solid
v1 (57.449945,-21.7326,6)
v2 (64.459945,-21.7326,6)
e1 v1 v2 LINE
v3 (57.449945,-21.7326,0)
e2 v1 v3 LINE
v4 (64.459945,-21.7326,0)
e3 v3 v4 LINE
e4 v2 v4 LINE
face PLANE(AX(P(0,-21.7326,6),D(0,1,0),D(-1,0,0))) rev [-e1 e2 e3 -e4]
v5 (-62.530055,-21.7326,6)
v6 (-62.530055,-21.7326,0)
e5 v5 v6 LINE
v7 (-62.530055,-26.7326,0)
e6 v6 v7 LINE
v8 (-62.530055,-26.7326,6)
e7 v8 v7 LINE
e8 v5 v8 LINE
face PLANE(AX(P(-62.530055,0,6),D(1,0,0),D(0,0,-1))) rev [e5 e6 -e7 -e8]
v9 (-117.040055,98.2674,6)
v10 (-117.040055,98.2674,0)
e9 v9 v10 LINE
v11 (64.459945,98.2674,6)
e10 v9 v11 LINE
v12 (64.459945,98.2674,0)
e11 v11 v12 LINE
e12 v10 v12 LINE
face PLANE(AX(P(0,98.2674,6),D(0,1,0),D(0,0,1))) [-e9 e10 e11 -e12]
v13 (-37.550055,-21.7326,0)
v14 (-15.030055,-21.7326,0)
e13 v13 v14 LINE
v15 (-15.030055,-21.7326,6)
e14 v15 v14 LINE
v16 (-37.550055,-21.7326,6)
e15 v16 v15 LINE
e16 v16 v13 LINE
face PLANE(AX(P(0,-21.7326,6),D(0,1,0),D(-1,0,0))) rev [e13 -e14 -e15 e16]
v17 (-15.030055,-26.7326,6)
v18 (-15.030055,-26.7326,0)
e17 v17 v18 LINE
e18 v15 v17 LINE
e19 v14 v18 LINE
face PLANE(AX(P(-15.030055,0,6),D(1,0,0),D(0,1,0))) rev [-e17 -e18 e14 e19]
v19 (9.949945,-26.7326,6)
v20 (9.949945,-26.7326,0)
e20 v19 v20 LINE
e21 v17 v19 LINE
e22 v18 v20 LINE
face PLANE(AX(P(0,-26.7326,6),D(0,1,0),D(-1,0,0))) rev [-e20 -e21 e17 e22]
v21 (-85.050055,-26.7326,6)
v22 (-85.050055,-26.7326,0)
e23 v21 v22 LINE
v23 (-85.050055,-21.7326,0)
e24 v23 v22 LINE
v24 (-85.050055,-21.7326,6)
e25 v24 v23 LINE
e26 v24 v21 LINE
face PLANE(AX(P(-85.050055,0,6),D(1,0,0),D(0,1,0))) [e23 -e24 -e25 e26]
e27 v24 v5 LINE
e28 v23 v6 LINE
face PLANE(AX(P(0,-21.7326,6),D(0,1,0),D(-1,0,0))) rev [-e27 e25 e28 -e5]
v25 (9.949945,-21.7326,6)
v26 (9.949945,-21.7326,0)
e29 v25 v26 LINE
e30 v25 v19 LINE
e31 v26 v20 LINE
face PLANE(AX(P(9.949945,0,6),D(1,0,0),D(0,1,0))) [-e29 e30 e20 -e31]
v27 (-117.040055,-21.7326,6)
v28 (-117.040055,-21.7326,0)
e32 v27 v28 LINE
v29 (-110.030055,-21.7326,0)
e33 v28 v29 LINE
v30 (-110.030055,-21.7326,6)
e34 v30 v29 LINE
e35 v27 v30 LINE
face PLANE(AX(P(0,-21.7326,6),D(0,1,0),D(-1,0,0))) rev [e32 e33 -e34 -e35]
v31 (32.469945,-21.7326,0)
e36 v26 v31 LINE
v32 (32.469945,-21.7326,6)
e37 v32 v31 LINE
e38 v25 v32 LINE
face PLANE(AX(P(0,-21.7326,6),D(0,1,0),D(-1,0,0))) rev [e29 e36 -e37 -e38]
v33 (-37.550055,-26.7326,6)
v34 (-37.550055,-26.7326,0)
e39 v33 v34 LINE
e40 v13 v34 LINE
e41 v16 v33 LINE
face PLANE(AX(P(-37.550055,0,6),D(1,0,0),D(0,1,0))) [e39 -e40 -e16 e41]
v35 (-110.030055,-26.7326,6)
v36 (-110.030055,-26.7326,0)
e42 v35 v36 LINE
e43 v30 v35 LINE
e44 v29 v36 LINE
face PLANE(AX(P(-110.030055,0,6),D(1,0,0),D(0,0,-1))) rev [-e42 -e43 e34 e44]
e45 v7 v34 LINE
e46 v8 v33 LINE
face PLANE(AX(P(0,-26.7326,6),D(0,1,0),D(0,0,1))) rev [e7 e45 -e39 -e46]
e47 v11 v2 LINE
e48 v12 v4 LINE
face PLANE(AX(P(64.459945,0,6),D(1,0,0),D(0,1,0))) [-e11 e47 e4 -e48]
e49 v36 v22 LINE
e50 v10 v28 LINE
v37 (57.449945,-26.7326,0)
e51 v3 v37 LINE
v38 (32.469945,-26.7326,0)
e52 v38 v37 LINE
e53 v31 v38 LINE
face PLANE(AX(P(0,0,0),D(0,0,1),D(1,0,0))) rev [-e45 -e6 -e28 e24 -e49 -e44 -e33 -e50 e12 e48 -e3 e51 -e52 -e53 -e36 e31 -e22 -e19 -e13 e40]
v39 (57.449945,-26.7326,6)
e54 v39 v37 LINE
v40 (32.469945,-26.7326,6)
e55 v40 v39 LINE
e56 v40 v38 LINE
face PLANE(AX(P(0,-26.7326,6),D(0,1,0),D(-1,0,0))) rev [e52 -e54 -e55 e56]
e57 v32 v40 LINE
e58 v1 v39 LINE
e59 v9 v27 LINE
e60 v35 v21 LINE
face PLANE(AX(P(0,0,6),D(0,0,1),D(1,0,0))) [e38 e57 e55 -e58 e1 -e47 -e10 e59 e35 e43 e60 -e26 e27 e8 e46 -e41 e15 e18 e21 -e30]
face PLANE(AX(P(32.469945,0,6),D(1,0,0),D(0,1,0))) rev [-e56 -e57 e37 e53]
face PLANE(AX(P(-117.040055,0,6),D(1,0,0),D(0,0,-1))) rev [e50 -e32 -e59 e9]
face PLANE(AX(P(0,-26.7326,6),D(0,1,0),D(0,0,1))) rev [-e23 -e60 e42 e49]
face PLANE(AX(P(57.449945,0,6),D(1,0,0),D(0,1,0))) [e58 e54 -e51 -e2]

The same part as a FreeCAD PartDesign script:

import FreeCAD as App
import Part
import Sketcher

V = App.Vector
Q = App.Units.Quantity

doc = App.newDocument("Part")
body = doc.addObject("PartDesign::Body", "Body")

# Sketch on XY plane
sketch1 = body.newObject("Sketcher::SketchObject", "Sketch")
sketch1.AttachmentSupport = (doc.getObject("XY_Plane"), [""])
sketch1.MapMode = "FlatFace"
sketch1.addGeometry(Part.LineSegment(V(-117, 98, 0), V(-117, -22, 0)), False)
sketch1.addGeometry(Part.LineSegment(V(-117, -22, 0), V(-110, -22, 0)), False)
sketch1.addGeometry(Part.LineSegment(V(-110, -22, 0), V(-110, -27, 0)), False)
sketch1.addGeometry(Part.LineSegment(V(-110, -27, 0), V(-85, -27, 0)), False)
sketch1.addGeometry(Part.LineSegment(V(-85, -27, 0), V(-85, -22, 0)), False)
sketch1.addGeometry(Part.LineSegment(V(-85, -22, 0), V(-63, -22, 0)), False)
sketch1.addGeometry(Part.LineSegment(V(-63, -22, 0), V(-63, -27, 0)), False)
sketch1.addGeometry(Part.LineSegment(V(-63, -27, 0), V(-38, -27, 0)), False)
sketch1.addGeometry(Part.LineSegment(V(-38, -27, 0), V(-38, -22, 0)), False)
sketch1.addGeometry(Part.LineSegment(V(-38, -22, 0), V(-15, -22, 0)), False)
sketch1.addGeometry(Part.LineSegment(V(-15, -22, 0), V(-15, -27, 0)), False)
sketch1.addGeometry(Part.LineSegment(V(-15, -27, 0), V(10, -27, 0)), False)
sketch1.addGeometry(Part.LineSegment(V(10, -27, 0), V(10, -22, 0)), False)
sketch1.addGeometry(Part.LineSegment(V(10, -22, 0), V(32, -22, 0)), False)
sketch1.addGeometry(Part.LineSegment(V(32, -22, 0), V(32, -27, 0)), False)
sketch1.addGeometry(Part.LineSegment(V(32, -27, 0), V(57, -27, 0)), False)
sketch1.addGeometry(Part.LineSegment(V(57, -27, 0), V(57, -22, 0)), False)
sketch1.addGeometry(Part.LineSegment(V(57, -22, 0), V(64, -22, 0)), False)
sketch1.addGeometry(Part.LineSegment(V(64, -22, 0), V(64, 98, 0)), False)
sketch1.addGeometry(Part.LineSegment(V(64, 98, 0), V(-117, 98, 0)), False)
sketch1.addConstraint(Sketcher.Constraint("Coincident", 0, 2, 1, 1))
sketch1.addConstraint(Sketcher.Constraint("Coincident", 1, 2, 2, 1))
sketch1.addConstraint(Sketcher.Constraint("Coincident", 2, 2, 3, 1))
sketch1.addConstraint(Sketcher.Constraint("Coincident", 3, 2, 4, 1))
sketch1.addConstraint(Sketcher.Constraint("Coincident", 4, 2, 5, 1))
sketch1.addConstraint(Sketcher.Constraint("Coincident", 5, 2, 6, 1))
sketch1.addConstraint(Sketcher.Constraint("Coincident", 6, 2, 7, 1))
sketch1.addConstraint(Sketcher.Constraint("Coincident", 7, 2, 8, 1))
sketch1.addConstraint(Sketcher.Constraint("Coincident", 8, 2, 9, 1))
sketch1.addConstraint(Sketcher.Constraint("Coincident", 9, 2, 10, 1))
sketch1.addConstraint(Sketcher.Constraint("Coincident", 10, 2, 11, 1))
sketch1.addConstraint(Sketcher.Constraint("Coincident", 11, 2, 12, 1))
sketch1.addConstraint(Sketcher.Constraint("Coincident", 12, 2, 13, 1))
sketch1.addConstraint(Sketcher.Constraint("Coincident", 13, 2, 14, 1))
sketch1.addConstraint(Sketcher.Constraint("Coincident", 14, 2, 15, 1))
sketch1.addConstraint(Sketcher.Constraint("Coincident", 15, 2, 16, 1))
sketch1.addConstraint(Sketcher.Constraint("Coincident", 16, 2, 17, 1))
sketch1.addConstraint(Sketcher.Constraint("Coincident", 17, 2, 18, 1))
sketch1.addConstraint(Sketcher.Constraint("Coincident", 18, 2, 19, 1))
sketch1.addConstraint(Sketcher.Constraint("Coincident", 19, 2, 0, 1))
sketch1.addConstraint(Sketcher.Constraint("Vertical", 0))
sketch1.addConstraint(Sketcher.Constraint("Horizontal", 1))
sketch1.addConstraint(Sketcher.Constraint("Vertical", 2))
sketch1.addConstraint(Sketcher.Constraint("Horizontal", 3))
sketch1.addConstraint(Sketcher.Constraint("Vertical", 4))
sketch1.addConstraint(Sketcher.Constraint("Horizontal", 5))
sketch1.addConstraint(Sketcher.Constraint("Vertical", 6))
sketch1.addConstraint(Sketcher.Constraint("Horizontal", 7))
sketch1.addConstraint(Sketcher.Constraint("Vertical", 8))
sketch1.addConstraint(Sketcher.Constraint("Horizontal", 9))
sketch1.addConstraint(Sketcher.Constraint("Vertical", 10))
sketch1.addConstraint(Sketcher.Constraint("Horizontal", 11))
sketch1.addConstraint(Sketcher.Constraint("Vertical", 12))
sketch1.addConstraint(Sketcher.Constraint("Horizontal", 13))
sketch1.addConstraint(Sketcher.Constraint("Vertical", 14))
sketch1.addConstraint(Sketcher.Constraint("Horizontal", 15))
sketch1.addConstraint(Sketcher.Constraint("Vertical", 16))
sketch1.addConstraint(Sketcher.Constraint("Horizontal", 17))
sketch1.addConstraint(Sketcher.Constraint("Vertical", 18))
sketch1.addConstraint(Sketcher.Constraint("Horizontal", 19))
sketch1.addConstraint(Sketcher.Constraint("Horizontal", 1, 2, 4, 2))
sketch1.addConstraint(Sketcher.Constraint("Horizontal", 3, 2, 6, 2))
sketch1.addConstraint(Sketcher.Constraint("Horizontal", 5, 2, 8, 2))
sketch1.addConstraint(Sketcher.Constraint("Horizontal", 7, 2, 10, 2))
sketch1.addConstraint(Sketcher.Constraint("Horizontal", 9, 2, 12, 2))
sketch1.addConstraint(Sketcher.Constraint("Horizontal", 11, 2, 14, 2))
sketch1.addConstraint(Sketcher.Constraint("Horizontal", 13, 2, 16, 2))
sketch1.addConstraint(Sketcher.Constraint("Equal", 3, 7))
sketch1.addConstraint(Sketcher.Constraint("Equal", 5, 9))
sketch1.addConstraint(Sketcher.Constraint("Equal", 7, 11))
sketch1.addConstraint(Sketcher.Constraint("Equal", 9, 13))
sketch1.addConstraint(Sketcher.Constraint("Equal", 11, 15))
sketch1.addConstraint(Sketcher.Constraint("Equal", 1, 17))
sketch1.addConstraint(Sketcher.Constraint("DistanceY", 0, 2, 0, 1, Q("120 mm")))
sketch1.addConstraint(Sketcher.Constraint("DistanceY", 2, 2, 2, 1, Q("5 mm")))
sketch1.addConstraint(Sketcher.Constraint("DistanceX", 19, 2, 19, 1, Q("181.5 mm")))
sketch1.addConstraint(Sketcher.Constraint("DistanceX", 1, 1, 1, 2, Q("7.01 mm")))
sketch1.addConstraint(Sketcher.Constraint("DistanceX", 3, 1, 3, 2, Q("24.98 mm")))
sketch1.addConstraint(Sketcher.Constraint("DistanceY", 0, 2, -1, 1, Q("21.7326 mm")))
sketch1.addConstraint(Sketcher.Constraint("DistanceX", 0, 2, -1, 1, Q("117.040055 mm")))
pad1 = body.newObject("PartDesign::Pad", "Pad")
pad1.Profile = sketch1
pad1.Length = 6

doc.recompute()
